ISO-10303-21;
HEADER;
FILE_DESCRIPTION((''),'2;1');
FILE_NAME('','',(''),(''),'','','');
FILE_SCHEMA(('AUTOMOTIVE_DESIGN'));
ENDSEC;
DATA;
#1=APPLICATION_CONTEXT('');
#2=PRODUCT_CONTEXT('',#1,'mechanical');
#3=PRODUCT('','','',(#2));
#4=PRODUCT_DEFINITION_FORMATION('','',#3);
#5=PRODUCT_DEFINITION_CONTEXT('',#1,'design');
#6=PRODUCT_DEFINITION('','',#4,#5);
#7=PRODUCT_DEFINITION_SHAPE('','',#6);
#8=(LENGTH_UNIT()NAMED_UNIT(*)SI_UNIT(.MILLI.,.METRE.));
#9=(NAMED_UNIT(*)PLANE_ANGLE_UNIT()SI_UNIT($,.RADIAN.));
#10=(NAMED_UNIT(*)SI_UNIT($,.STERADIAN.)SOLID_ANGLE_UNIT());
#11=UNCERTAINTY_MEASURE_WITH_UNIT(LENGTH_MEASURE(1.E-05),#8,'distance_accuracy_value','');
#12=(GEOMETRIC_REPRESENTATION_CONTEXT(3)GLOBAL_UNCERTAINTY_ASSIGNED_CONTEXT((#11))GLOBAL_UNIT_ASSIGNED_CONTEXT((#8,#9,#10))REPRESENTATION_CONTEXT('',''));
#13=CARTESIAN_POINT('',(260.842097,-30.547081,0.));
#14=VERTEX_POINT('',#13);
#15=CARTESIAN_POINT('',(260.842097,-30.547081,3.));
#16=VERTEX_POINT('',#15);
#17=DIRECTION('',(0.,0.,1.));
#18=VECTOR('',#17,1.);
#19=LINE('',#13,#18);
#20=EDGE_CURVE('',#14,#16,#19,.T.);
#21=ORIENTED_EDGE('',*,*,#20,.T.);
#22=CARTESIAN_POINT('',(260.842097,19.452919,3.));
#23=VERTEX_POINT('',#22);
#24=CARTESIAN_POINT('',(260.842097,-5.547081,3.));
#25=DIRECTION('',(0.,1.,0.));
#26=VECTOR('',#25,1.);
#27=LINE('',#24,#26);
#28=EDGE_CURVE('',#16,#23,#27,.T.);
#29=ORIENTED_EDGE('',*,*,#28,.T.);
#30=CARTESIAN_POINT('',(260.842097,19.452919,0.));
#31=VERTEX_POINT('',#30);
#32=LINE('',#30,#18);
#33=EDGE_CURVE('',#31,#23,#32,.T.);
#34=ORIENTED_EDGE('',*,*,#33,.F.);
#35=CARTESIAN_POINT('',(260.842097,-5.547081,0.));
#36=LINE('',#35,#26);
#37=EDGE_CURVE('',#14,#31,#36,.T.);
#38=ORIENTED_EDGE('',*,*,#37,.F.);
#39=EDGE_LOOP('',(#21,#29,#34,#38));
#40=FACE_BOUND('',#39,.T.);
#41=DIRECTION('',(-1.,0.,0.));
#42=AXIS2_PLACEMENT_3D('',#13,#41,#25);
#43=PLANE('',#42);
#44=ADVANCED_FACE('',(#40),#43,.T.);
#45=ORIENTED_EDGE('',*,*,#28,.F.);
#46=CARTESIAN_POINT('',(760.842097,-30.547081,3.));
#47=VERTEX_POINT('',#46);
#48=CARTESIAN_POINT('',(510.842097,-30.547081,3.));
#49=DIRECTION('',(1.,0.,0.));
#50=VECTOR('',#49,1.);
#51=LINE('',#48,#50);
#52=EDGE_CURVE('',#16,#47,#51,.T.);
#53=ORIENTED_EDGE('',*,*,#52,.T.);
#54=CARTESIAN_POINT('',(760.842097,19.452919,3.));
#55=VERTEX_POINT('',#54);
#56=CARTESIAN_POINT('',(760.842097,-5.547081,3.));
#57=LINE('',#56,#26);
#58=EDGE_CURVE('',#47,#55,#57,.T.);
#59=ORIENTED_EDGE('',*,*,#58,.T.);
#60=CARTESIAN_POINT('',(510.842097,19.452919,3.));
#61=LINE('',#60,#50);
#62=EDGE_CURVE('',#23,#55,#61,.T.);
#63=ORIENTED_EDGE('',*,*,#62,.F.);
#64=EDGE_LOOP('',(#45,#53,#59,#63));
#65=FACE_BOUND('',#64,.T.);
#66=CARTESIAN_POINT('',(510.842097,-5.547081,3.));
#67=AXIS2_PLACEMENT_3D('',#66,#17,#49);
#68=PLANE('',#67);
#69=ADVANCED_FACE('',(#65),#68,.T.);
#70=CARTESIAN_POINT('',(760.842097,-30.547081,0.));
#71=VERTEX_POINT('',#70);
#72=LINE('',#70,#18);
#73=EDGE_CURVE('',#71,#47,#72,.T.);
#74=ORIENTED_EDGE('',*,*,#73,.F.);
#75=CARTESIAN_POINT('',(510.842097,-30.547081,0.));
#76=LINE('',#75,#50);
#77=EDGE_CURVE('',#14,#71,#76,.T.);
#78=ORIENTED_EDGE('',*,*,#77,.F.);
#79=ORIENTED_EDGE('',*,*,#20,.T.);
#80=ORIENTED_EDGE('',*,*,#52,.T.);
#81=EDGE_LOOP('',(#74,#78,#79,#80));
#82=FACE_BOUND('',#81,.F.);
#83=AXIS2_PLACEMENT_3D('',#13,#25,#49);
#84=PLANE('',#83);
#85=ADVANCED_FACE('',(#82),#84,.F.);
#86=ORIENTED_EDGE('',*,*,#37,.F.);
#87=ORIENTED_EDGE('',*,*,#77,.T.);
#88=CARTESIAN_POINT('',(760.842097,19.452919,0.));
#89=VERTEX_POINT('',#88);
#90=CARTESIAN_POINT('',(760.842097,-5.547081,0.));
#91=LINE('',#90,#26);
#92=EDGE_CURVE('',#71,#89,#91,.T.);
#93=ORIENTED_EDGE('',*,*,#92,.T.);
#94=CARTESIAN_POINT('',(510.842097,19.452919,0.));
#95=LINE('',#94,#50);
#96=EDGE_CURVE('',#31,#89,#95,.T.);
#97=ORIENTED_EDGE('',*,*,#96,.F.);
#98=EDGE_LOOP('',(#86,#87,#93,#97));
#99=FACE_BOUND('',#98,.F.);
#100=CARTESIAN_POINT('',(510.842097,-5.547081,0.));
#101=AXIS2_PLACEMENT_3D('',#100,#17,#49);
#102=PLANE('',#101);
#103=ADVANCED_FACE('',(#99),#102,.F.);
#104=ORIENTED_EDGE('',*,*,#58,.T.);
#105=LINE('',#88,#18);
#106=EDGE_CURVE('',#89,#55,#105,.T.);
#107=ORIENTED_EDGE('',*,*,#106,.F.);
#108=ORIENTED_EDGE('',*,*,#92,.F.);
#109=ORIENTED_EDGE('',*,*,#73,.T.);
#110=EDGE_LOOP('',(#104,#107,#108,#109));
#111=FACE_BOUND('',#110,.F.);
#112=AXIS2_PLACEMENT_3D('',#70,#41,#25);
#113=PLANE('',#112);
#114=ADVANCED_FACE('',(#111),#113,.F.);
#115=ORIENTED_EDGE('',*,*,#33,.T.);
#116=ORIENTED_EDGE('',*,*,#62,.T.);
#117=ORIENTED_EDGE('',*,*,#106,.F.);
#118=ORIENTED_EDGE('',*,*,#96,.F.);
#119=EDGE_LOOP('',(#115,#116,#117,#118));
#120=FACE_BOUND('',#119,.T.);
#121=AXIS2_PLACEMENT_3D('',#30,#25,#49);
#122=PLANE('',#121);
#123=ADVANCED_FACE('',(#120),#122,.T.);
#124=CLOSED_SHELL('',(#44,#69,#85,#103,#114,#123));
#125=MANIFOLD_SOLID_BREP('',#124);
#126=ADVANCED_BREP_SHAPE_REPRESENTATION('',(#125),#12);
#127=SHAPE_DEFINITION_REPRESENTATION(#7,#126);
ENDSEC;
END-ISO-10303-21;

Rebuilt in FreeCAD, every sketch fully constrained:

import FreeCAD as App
import Part
import Sketcher

V = App.Vector

doc = App.newDocument("Part")
body = doc.addObject("PartDesign::Body", "Body")

sketch1 = doc.addObject("Sketcher::SketchObject", "Sketch")
body.addObject(sketch1)
sketch1.AttachmentSupport = (doc.XY_Plane, [""])
sketch1.MapMode = "FlatFace"
sketch1.addGeometry([
    Part.LineSegment(V(261, 19, 0), V(261, -31, 0)),
    Part.LineSegment(V(261, -31, 0), V(761, -31, 0)),
    Part.LineSegment(V(761, -31, 0), V(761, 19, 0)),
    Part.LineSegment(V(761, 19, 0), V(261, 19, 0)),
], False)
sketch1.addConstraint([
    Sketcher.Constraint("Coincident", 0, 2, 1, 1),
    Sketcher.Constraint("Coincident", 1, 2, 2, 1),
    Sketcher.Constraint("Coincident", 2, 2, 3, 1),
    Sketcher.Constraint("Coincident", 3, 2, 0, 1),
    Sketcher.Constraint("Vertical", 0),
    Sketcher.Constraint("Horizontal", 1),
    Sketcher.Constraint("Vertical", 2),
    Sketcher.Constraint("Horizontal", 3),
    Sketcher.Constraint("DistanceX", 1, 1, 1, 2, 500.0),
    Sketcher.Constraint("DistanceY", 0, 2, 0, 1, 50.0),
    Sketcher.Constraint("DistanceY", 0, 2, -1, 1, 30.547081),
    Sketcher.Constraint("DistanceX", -1, 1, 0, 2, 260.842097),
])
pad1 = doc.addObject("PartDesign::Pad", "Pad")
body.addObject(pad1)
pad1.Profile = sketch1
pad1.Length = 3

doc.recompute()
